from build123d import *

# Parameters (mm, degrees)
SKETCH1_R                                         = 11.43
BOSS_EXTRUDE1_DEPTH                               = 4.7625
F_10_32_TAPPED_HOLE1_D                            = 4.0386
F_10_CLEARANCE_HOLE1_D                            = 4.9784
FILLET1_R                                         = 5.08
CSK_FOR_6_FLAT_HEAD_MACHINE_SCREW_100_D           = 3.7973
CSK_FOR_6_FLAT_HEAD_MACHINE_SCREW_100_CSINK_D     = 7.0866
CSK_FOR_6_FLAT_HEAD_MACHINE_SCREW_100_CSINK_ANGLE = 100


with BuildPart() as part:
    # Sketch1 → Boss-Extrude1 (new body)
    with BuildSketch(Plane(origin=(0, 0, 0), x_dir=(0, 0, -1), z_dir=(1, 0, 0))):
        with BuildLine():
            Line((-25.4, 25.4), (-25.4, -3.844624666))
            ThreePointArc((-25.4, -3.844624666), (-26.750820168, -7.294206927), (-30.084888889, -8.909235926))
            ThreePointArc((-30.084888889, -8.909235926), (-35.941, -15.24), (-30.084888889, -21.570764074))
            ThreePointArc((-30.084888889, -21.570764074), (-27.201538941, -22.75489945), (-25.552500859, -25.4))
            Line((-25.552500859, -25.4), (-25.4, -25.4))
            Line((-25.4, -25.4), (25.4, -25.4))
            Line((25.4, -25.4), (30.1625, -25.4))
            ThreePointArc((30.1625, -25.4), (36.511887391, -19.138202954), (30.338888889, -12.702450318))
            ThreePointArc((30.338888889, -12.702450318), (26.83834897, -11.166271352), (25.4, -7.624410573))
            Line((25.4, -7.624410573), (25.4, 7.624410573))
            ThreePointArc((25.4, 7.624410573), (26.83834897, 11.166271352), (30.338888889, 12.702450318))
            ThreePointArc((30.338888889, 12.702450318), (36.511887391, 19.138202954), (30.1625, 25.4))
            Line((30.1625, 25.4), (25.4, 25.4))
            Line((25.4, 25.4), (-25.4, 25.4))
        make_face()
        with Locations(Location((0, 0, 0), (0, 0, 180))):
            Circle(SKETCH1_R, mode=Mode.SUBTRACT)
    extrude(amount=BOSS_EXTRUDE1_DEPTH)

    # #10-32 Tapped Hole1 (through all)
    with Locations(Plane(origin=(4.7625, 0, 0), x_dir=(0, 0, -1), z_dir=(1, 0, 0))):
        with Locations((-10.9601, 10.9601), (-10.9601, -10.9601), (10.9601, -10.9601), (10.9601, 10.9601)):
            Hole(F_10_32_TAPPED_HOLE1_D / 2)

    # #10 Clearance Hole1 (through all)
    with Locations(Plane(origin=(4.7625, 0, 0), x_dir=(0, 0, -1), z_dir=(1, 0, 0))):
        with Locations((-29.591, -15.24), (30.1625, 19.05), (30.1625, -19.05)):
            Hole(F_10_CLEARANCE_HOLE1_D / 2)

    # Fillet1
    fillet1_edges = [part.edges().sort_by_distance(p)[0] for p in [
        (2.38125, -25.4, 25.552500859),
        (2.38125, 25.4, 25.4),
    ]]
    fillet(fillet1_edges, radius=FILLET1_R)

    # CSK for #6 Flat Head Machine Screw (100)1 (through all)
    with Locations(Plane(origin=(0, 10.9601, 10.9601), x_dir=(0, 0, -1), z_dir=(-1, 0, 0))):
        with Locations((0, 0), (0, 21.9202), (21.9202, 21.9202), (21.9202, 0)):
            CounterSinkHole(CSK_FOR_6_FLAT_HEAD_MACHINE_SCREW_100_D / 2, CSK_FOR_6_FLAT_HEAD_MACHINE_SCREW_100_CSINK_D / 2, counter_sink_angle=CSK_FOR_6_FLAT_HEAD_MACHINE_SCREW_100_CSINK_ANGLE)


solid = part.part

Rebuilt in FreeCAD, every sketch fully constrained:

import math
import FreeCAD as App
import Part
import Sketcher

V = App.Vector
Q = App.Units.Quantity


def edges_at(feature, points):
    """Names of the edges that pass closest to the given points."""
    edges = feature.Shape.Edges
    near = lambda p: min(range(len(edges)), key=lambda i: edges[i].distToShape(Part.Vertex(*p))[0])
    return sorted({f"Edge{near(p) + 1}" for p in points})

doc = App.newDocument("Part")
params = doc.addObject("Spreadsheet::Sheet", "Params")
for row, (alias, value) in enumerate([
    ("sketch1_diameter", "0.9 in"),
    ("sketch1_radius", "0.2 in"),
    ("sketch1_radius2", "0.25 in"),
    ("sketch1_height", "2.1875 in"),
    ("pad1_length", "0.1875 in"),
    ("sketch2_diameter", "0.159 in"),
    ("hole_diameter", "0.159 in"),
    ("sketch3_diameter", "0.196 in"),
    ("hole2_diameter", "0.196 in"),
    ("fillet_radius", "0.2 in"),
    ("hole3_diameter", "0.1495 in"),
    ("hole3_csink_diameter", "0.279 in"),
], start=1):
    params.set(f"A{row}", alias)
    params.set(f"B{row}", "=" + value)
    params.setAlias(f"B{row}", alias)

body = doc.addObject("PartDesign::Body", "Body")

# Sketch on YZ plane
sketch1 = body.newObject("Sketcher::SketchObject", "Sketch")
sketch1.AttachmentSupport = (doc.getObject("YZ_Plane"), [""])
sketch1.MapMode = "FlatFace"
sketch1.addGeometry(Part.LineSegment(V(25.4, 25.4, 0), V(-3.844625, 25.4, 0)), False)
sketch1.addGeometry(Part.ArcOfCircle(Part.Circle(V(-3.844625, 30.48, 0), V(0, 0, 1), 5.08), math.radians(-175.539156), math.radians(-90)), False)
sketch1.addGeometry(Part.ArcOfCircle(Part.Circle(V(-15.24, 29.591, 0), V(0, 0, 1), 6.35), math.radians(4.460844), math.radians(175.539156)), False)
sketch1.addGeometry(Part.ArcOfCircle(Part.Circle(V(-26.635375, 30.48, 0), V(0, 0, 1), 5.08), math.radians(-75.925454), math.radians(-4.460844)), False)
sketch1.addGeometry(Part.LineSegment(V(-25.4, 25.552501, 0), V(-25.4, -30.1625, 0)), False)
sketch1.addGeometry(Part.ArcOfCircle(Part.Circle(V(-19.05, -30.1625, 0), V(0, 0, 1), 6.35), math.radians(180), math.radians(358.408246)), False)
sketch1.addGeometry(Part.ArcOfCircle(Part.Circle(V(-7.624411, -30.48, 0), V(0, 0, 1), 5.08), math.radians(90), math.radians(178.408246)), False)
sketch1.addGeometry(Part.LineSegment(V(-7.624411, -25.4, 0), V(7.624411, -25.4, 0)), False)
sketch1.addGeometry(Part.ArcOfCircle(Part.Circle(V(7.624411, -30.48, 0), V(0, 0, 1), 5.08), math.radians(1.591754), math.radians(90)), False)
sketch1.addGeometry(Part.ArcOfCircle(Part.Circle(V(19.05, -30.1625, 0), V(0, 0, 1), 6.35), math.radians(-178.408246), math.radians(0)), False)
sketch1.addGeometry(Part.LineSegment(V(25.4, -30.1625, 0), V(25.4, 25.4, 0)), False)
sketch1.addGeometry(Part.Circle(V(0, 0, 0), V(0, 0, 1), 11.43), False)
sketch1.addConstraint(Sketcher.Constraint("Tangent", 0, 2, 1, 2))
sketch1.addConstraint(Sketcher.Constraint("Tangent", 1, 1, 2, 1))
sketch1.addConstraint(Sketcher.Constraint("Tangent", 2, 2, 3, 2))
sketch1.addConstraint(Sketcher.Constraint("Coincident", 3, 1, 4, 1))
sketch1.addConstraint(Sketcher.Constraint("Tangent", 4, 2, 5, 1))
sketch1.addConstraint(Sketcher.Constraint("Tangent", 5, 2, 6, 2))
sketch1.addConstraint(Sketcher.Constraint("Tangent", 6, 1, 7, 1))
sketch1.addConstraint(Sketcher.Constraint("Tangent", 7, 2, 8, 2))
sketch1.addConstraint(Sketcher.Constraint("Tangent", 8, 1, 9, 1))
sketch1.addConstraint(Sketcher.Constraint("Tangent", 9, 2, 10, 1))
sketch1.addConstraint(Sketcher.Constraint("Coincident", 10, 2, 0, 1))
sketch1.addConstraint(Sketcher.Constraint("Horizontal", 0))
sketch1.addConstraint(Sketcher.Constraint("Vertical", 4))
sketch1.addConstraint(Sketcher.Constraint("Horizontal", 7))
sketch1.addConstraint(Sketcher.Constraint("Vertical", 10))
sketch1.addConstraint(Sketcher.Constraint("Coincident", 11, 3, -1, 1))
sketch1.addConstraint(Sketcher.Constraint("Equal", 1, 3))
sketch1.addConstraint(Sketcher.Constraint("Equal", 2, 5))
sketch1.addConstraint(Sketcher.Constraint("Equal", 3, 6))
sketch1.addConstraint(Sketcher.Constraint("Equal", 6, 8))
sketch1.addConstraint(Sketcher.Constraint("Equal", 5, 9))
sketch1.addConstraint(Sketcher.Constraint("Symmetric", 5, 3, 9, 3, -2))
sketch1.addConstraint(Sketcher.Constraint("Horizontal", 1, 3, 3, 3))
sketch1.addConstraint(Sketcher.Constraint("Diameter", 11, Q("0.9 in")))
sketch1.addConstraint(Sketcher.Constraint("Radius", 1, Q("0.2 in")))
sketch1.addConstraint(Sketcher.Constraint("Radius", 2, Q("0.25 in")))
sketch1.addConstraint(Sketcher.Constraint("DistanceY", -1, 1, 0, 2, Q("1 in")))
sketch1.addConstraint(Sketcher.Constraint("DistanceX", 3, 1, -1, 1, Q("1 in")))
sketch1.addConstraint(Sketcher.Constraint("DistanceY", 6, 1, -1, 1, Q("1 in")))
sketch1.addConstraint(Sketcher.Constraint("DistanceX", 2, 3, -1, 1, Q("0.6 in")))
sketch1.addConstraint(Sketcher.Constraint("DistanceY", 10, 1, 10, 2, Q("2.1875 in")))
sketch1.addConstraint(Sketcher.Constraint("DistanceY", -1, 1, 2, 3, Q("1.165 in")))
sketch1.setExpression("Constraints[23]", "Params.sketch1_diameter")
sketch1.setExpression("Constraints[24]", "Params.sketch1_radius")
sketch1.setExpression("Constraints[25]", "Params.sketch1_radius2")
sketch1.setExpression("Constraints[30]", "Params.sketch1_height")
pad1 = body.newObject("PartDesign::Pad", "Pad")
pad1.Profile = sketch1
pad1.setExpression("Length", "Params.pad1_length")

# Sketch on YZ plane
sketch2 = body.newObject("Sketcher::SketchObject", "Sketch001")
sketch2.AttachmentSupport = (doc.getObject("YZ_Plane"), [""])
sketch2.MapMode = "FlatFace"
sketch2.AttachmentOffset = App.Placement(V(0, 0, 0.1875 * 25.4), App.Rotation())
sketch2.addGeometry(Part.Circle(V(10.9601, 10.9601, 0), V(0, 0, 1), 2.0193), False)
sketch2.addGeometry(Part.Circle(V(-10.9601, 10.9601, 0), V(0, 0, 1), 2.0193), False)
sketch2.addGeometry(Part.Circle(V(-10.9601, -10.9601, 0), V(0, 0, 1), 2.0193), False)
sketch2.addGeometry(Part.Circle(V(10.9601, -10.9601, 0), V(0, 0, 1), 2.0193), False)
sketch2.addConstraint(Sketcher.Constraint("Equal", 0, 1))
sketch2.addConstraint(Sketcher.Constraint("Equal", 1, 2))
sketch2.addConstraint(Sketcher.Constraint("Equal", 2, 3))
sketch2.addConstraint(Sketcher.Constraint("Symmetric", 0, 3, 2, 3, -1, 1))
sketch2.addConstraint(Sketcher.Constraint("Symmetric", 1, 3, 3, 3, -1, 1))
sketch2.addConstraint(Sketcher.Constraint("Symmetric", 0, 3, 1, 3, -2))
sketch2.addConstraint(Sketcher.Constraint("Diameter", 0, Q("0.159 in")))
sketch2.addConstraint(Sketcher.Constraint("DistanceX", 1, 3, 0, 3, Q("0.863 in")))
sketch2.addConstraint(Sketcher.Constraint("DistanceY", 2, 3, 1, 3, Q("0.863 in")))
sketch2.setExpression("Constraints[6]", "Params.sketch2_diameter")
doc.recompute()
hole = body.newObject("PartDesign::Hole", "Hole")
hole.Profile = sketch2
hole.ThreadType = "None"
hole.setExpression("Diameter", "Params.hole_diameter")
hole.DepthType = "ThroughAll"

# Sketch on YZ plane
sketch3 = body.newObject("Sketcher::SketchObject", "Sketch002")
sketch3.AttachmentSupport = (doc.getObject("YZ_Plane"), [""])
sketch3.MapMode = "FlatFace"
sketch3.AttachmentOffset = App.Placement(V(0, 0, 0.1875 * 25.4), App.Rotation())
sketch3.addGeometry(Part.Circle(V(-15.24, 29.591, 0), V(0, 0, 1), 2.4892), False)
sketch3.addGeometry(Part.Circle(V(19.05, -30.1625, 0), V(0, 0, 1), 2.4892), False)
sketch3.addGeometry(Part.Circle(V(-19.05, -30.1625, 0), V(0, 0, 1), 2.4892), False)
sketch3.addConstraint(Sketcher.Constraint("Equal", 0, 1))
sketch3.addConstraint(Sketcher.Constraint("Equal", 1, 2))
sketch3.addConstraint(Sketcher.Constraint("Symmetric", 1, 3, 2, 3, -2))
sketch3.addConstraint(Sketcher.Constraint("Diameter", 0, Q("0.196 in")))
sketch3.addConstraint(Sketcher.Constraint("DistanceX", 0, 3, -1, 1, Q("0.6 in")))
sketch3.addConstraint(Sketcher.Constraint("DistanceX", 2, 3, 1, 3, Q("1.5 in")))
sketch3.addConstraint(Sketcher.Constraint("DistanceY", -1, 1, 0, 3, Q("1.165 in")))
sketch3.addConstraint(Sketcher.Constraint("DistanceY", 1, 3, -1, 1, Q("1.1875 in")))
sketch3.setExpression("Constraints[3]", "Params.sketch3_diameter")
doc.recompute()
hole2 = body.newObject("PartDesign::Hole", "Hole001")
hole2.Profile = sketch3
hole2.ThreadType = "None"
hole2.setExpression("Diameter", "Params.hole2_diameter")
hole2.DepthType = "ThroughAll"
doc.recompute()

fillet = body.newObject("PartDesign::Fillet", "Fillet")
fillet.Base = (hole2, edges_at(hole2, [(2.381, -25.4, 25.553), (2.381, 25.4, 25.4)]))
fillet.setExpression("Radius", "Params.fillet_radius")

# Sketch on YZ plane
sketch4 = body.newObject("Sketcher::SketchObject", "Sketch003")
sketch4.AttachmentSupport = (doc.getObject("YZ_Plane"), [""])
sketch4.MapMode = "FlatFace"
sketch4.addGeometry(Part.Circle(V(10.9601, 10.9601, 0), V(0, 0, 1), 1.89865), False)
sketch4.addGeometry(Part.Circle(V(-10.9601, 10.9601, 0), V(0, 0, 1), 1.89865), False)
sketch4.addGeometry(Part.Circle(V(-10.9601, -10.9601, 0), V(0, 0, 1), 1.89865), False)
sketch4.addGeometry(Part.Circle(V(10.9601, -10.9601, 0), V(0, 0, 1), 1.89865), False)
sketch4.addConstraint(Sketcher.Constraint("Equal", 0, 1))
sketch4.addConstraint(Sketcher.Constraint("Equal", 1, 2))
sketch4.addConstraint(Sketcher.Constraint("Equal", 2, 3))
sketch4.addConstraint(Sketcher.Constraint("Symmetric", 0, 3, 2, 3, -1, 1))
sketch4.addConstraint(Sketcher.Constraint("Symmetric", 1, 3, 3, 3, -1, 1))
sketch4.addConstraint(Sketcher.Constraint("Symmetric", 0, 3, 1, 3, -2))
sketch4.addConstraint(Sketcher.Constraint("Diameter", 0, Q("0.1495 in")))
sketch4.addConstraint(Sketcher.Constraint("DistanceX", 1, 3, 0, 3, Q("0.863 in")))
sketch4.addConstraint(Sketcher.Constraint("DistanceY", 2, 3, 1, 3, Q("0.863 in")))
doc.recompute()
hole3 = body.newObject("PartDesign::Hole", "Hole002")
hole3.Profile = sketch4
hole3.ThreadType = "None"
hole3.setExpression("Diameter", "Params.hole3_diameter")
hole3.DepthType = "ThroughAll"
hole3.HoleCutType = "Countersink"
hole3.setExpression("HoleCutDiameter", "Params.hole3_csink_diameter")
hole3.HoleCutCountersinkAngle = 100
hole3.Reversed = True

doc.recompute()
